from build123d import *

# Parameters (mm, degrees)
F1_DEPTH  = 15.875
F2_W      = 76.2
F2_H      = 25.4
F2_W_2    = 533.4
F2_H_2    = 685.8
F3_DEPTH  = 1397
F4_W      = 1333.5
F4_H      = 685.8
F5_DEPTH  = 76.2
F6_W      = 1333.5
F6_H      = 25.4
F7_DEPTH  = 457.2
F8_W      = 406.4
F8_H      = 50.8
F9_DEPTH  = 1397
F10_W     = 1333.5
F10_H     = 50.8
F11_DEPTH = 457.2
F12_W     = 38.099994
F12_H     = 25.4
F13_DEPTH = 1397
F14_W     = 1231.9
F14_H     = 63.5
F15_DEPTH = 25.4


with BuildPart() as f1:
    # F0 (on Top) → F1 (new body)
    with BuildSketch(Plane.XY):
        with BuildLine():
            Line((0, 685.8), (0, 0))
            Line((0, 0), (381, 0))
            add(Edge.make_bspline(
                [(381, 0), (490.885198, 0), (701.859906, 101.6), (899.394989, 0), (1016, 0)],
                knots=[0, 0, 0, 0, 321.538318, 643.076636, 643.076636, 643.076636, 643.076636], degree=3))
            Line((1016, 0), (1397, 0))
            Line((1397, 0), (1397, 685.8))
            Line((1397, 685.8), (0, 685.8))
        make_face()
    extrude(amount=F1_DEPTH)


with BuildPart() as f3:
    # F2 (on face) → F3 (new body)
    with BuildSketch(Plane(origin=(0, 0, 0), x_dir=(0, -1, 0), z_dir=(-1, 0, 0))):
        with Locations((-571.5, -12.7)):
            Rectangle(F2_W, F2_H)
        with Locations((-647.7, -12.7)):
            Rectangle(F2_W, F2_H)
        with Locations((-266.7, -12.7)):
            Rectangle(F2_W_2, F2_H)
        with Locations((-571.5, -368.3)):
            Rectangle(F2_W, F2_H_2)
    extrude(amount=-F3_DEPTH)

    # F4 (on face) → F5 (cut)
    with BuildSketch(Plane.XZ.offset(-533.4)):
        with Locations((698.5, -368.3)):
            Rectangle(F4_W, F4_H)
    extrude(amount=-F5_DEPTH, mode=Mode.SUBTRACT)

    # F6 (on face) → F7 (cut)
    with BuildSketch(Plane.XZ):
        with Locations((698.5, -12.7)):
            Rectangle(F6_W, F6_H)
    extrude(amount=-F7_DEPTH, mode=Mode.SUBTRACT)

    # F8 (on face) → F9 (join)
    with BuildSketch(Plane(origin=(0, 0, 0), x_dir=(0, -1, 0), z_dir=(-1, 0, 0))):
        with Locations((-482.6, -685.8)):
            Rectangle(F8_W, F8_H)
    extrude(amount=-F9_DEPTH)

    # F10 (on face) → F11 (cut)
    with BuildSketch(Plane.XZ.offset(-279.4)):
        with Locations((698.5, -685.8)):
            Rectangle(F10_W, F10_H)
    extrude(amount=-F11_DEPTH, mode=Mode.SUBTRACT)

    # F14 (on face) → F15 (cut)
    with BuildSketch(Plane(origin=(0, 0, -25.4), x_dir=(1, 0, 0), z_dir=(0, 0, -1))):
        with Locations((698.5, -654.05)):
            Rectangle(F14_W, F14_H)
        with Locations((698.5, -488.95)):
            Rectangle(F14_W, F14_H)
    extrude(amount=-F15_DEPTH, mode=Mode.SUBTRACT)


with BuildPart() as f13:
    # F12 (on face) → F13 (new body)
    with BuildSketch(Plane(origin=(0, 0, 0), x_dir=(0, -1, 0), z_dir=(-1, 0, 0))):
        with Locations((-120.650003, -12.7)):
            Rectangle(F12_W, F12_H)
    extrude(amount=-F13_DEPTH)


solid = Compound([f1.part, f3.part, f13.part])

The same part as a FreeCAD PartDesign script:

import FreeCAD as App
import Part
import Sketcher
Q = App.Units.Quantity

doc = App.newDocument("Part")
body = doc.addObject("PartDesign::Body", "Body")

# Sketch on XY plane
sketch1 = body.newObject("Sketcher::SketchObject", "Sketch")
sketch1.AttachmentSupport = (doc.getObject("XY_Plane"), [""])
sketch1.MapMode = "FlatFace"
sketch1.addGeometry(Part.LineSegment(App.Vector(0, 685.8, 0), App.Vector(0, 0, 0)), False)
sketch1.addGeometry(Part.LineSegment(App.Vector(0, 0, 0), App.Vector(381, 0, 0)), False)
sketch1.addGeometry(Part.BSplineCurve([App.Vector(381, 0, 0), App.Vector(490.885198, 0, 0), App.Vector(701.859906, 101.6, 0), App.Vector(899.394989, 0, 0), App.Vector(1016, 0, 0)], [4, 1, 4], [0, 321.538318, 643.076636], False, 3, [1, 1, 1, 1, 1], False), False)
sketch1.addGeometry(Part.LineSegment(App.Vector(1016, 0, 0), App.Vector(1397, 0, 0)), False)
sketch1.addGeometry(Part.LineSegment(App.Vector(1397, 0, 0), App.Vector(1397, 685.8, 0)), False)
sketch1.addGeometry(Part.LineSegment(App.Vector(1397, 685.8, 0), App.Vector(0, 685.8, 0)), False)
sketch1.addConstraint(Sketcher.Constraint("Block", 2))
sketch1.addConstraint(Sketcher.Constraint("Coincident", 0, 2, 1, 1))
sketch1.addConstraint(Sketcher.Constraint("Coincident", 1, 2, 2, 1))
sketch1.addConstraint(Sketcher.Constraint("Coincident", 2, 2, 3, 1))
sketch1.addConstraint(Sketcher.Constraint("Coincident", 3, 2, 4, 1))
sketch1.addConstraint(Sketcher.Constraint("Coincident", 4, 2, 5, 1))
sketch1.addConstraint(Sketcher.Constraint("Coincident", 5, 2, 0, 1))
sketch1.addConstraint(Sketcher.Constraint("Vertical", 0))
sketch1.addConstraint(Sketcher.Constraint("Horizontal", 1))
sketch1.addConstraint(Sketcher.Constraint("Horizontal", 3))
sketch1.addConstraint(Sketcher.Constraint("Vertical", 4))
sketch1.addConstraint(Sketcher.Constraint("Horizontal", 5))
sketch1.addConstraint(Sketcher.Constraint("PointOnObject", 5, 2, -2))
sketch1.addConstraint(Sketcher.Constraint("Equal", 1, 3))
sketch1.addConstraint(Sketcher.Constraint("DistanceY", 0, 2, 0, 1, Q("27 in")))
pad1 = body.newObject("PartDesign::Pad", "Pad")
pad1.Profile = sketch1
pad1.Length = Q("0.625 in")
body2 = doc.addObject("PartDesign::Body", "Body001")

# Sketch on YZ plane
sketch2 = body2.newObject("Sketcher::SketchObject", "Sketch001")
sketch2.AttachmentSupport = (doc.getObject("YZ_Plane001"), [""])
sketch2.MapMode = "FlatFace"
sketch2.addGeometry(Part.LineSegment(App.Vector(685.8, 0, 0), App.Vector(685.8, -25.4, 0)), False)
sketch2.addGeometry(Part.LineSegment(App.Vector(685.8, -25.4, 0), App.Vector(609.6, -25.4, 0)), False)
sketch2.addGeometry(Part.LineSegment(App.Vector(609.6, -25.4, 0), App.Vector(609.6, -711.2, 0)), False)
sketch2.addGeometry(Part.LineSegment(App.Vector(609.6, -711.2, 0), App.Vector(533.4, -711.2, 0)), False)
sketch2.addGeometry(Part.LineSegment(App.Vector(533.4, -711.2, 0), App.Vector(533.4, -25.4, 0)), False)
sketch2.addGeometry(Part.LineSegment(App.Vector(533.4, -25.4, 0), App.Vector(0, -25.4, 0)), False)
sketch2.addGeometry(Part.LineSegment(App.Vector(0, -25.4, 0), App.Vector(0, 0, 0)), False)
sketch2.addGeometry(Part.LineSegment(App.Vector(0, 0, 0), App.Vector(685.8, 0, 0)), False)
sketch2.addConstraint(Sketcher.Constraint("Coincident", 0, 2, 1, 1))
sketch2.addConstraint(Sketcher.Constraint("Coincident", 1, 2, 2, 1))
sketch2.addConstraint(Sketcher.Constraint("Coincident", 2, 2, 3, 1))
sketch2.addConstraint(Sketcher.Constraint("Coincident", 3, 2, 4, 1))
sketch2.addConstraint(Sketcher.Constraint("Coincident", 4, 2, 5, 1))
sketch2.addConstraint(Sketcher.Constraint("Coincident", 5, 2, 6, 1))
sketch2.addConstraint(Sketcher.Constraint("Coincident", 6, 2, 7, 1))
sketch2.addConstraint(Sketcher.Constraint("Coincident", 7, 2, 0, 1))
sketch2.addConstraint(Sketcher.Constraint("Vertical", 0))
sketch2.addConstraint(Sketcher.Constraint("Horizontal", 1))
sketch2.addConstraint(Sketcher.Constraint("Vertical", 2))
sketch2.addConstraint(Sketcher.Constraint("Horizontal", 3))
sketch2.addConstraint(Sketcher.Constraint("Vertical", 4))
sketch2.addConstraint(Sketcher.Constraint("Horizontal", 5))
sketch2.addConstraint(Sketcher.Constraint("Vertical", 6))
sketch2.addConstraint(Sketcher.Constraint("Horizontal", 7))
sketch2.addConstraint(Sketcher.Constraint("Coincident", 6, 2, -1, 1))
sketch2.addConstraint(Sketcher.Constraint("Horizontal", 1, 2, 4, 2))
sketch2.addConstraint(Sketcher.Constraint("Equal", 1, 3))
sketch2.addConstraint(Sketcher.Constraint("Equal", 7, 2))
sketch2.addConstraint(Sketcher.Constraint("DistanceX", 1, 2, 1, 1, Q("3 in")))
sketch2.addConstraint(Sketcher.Constraint("DistanceX", 5, 2, 5, 1, Q("21 in")))
sketch2.addConstraint(Sketcher.Constraint("DistanceY", 0, 2, 0, 1, Q("1 in")))
pad2 = body2.newObject("PartDesign::Pad", "Pad001")
pad2.Profile = sketch2
pad2.Length = Q("55 in")

# Sketch on XZ plane
sketch3 = body2.newObject("Sketcher::SketchObject", "Sketch002")
sketch3.AttachmentSupport = (doc.getObject("XZ_Plane001"), [""])
sketch3.MapMode = "FlatFace"
sketch3.AttachmentOffset = App.Placement(App.Vector(0, 0, -21 * 25.4), App.Rotation())
sketch3.addGeometry(Part.LineSegment(App.Vector(31.75, -25.4, 0), App.Vector(31.75, -711.2, 0)), False)
sketch3.addGeometry(Part.LineSegment(App.Vector(31.75, -711.2, 0), App.Vector(1365.25, -711.2, 0)), False)
sketch3.addGeometry(Part.LineSegment(App.Vector(1365.25, -711.2, 0), App.Vector(1365.25, -25.4, 0)), False)
sketch3.addGeometry(Part.LineSegment(App.Vector(1365.25, -25.4, 0), App.Vector(31.75, -25.4, 0)), False)
sketch3.addConstraint(Sketcher.Constraint("Coincident", 0, 2, 1, 1))
sketch3.addConstraint(Sketcher.Constraint("Coincident", 1, 2, 2, 1))
sketch3.addConstraint(Sketcher.Constraint("Coincident", 2, 2, 3, 1))
sketch3.addConstraint(Sketcher.Constraint("Coincident", 3, 2, 0, 1))
sketch3.addConstraint(Sketcher.Constraint("Vertical", 0))
sketch3.addConstraint(Sketcher.Constraint("Horizontal", 1))
sketch3.addConstraint(Sketcher.Constraint("Vertical", 2))
sketch3.addConstraint(Sketcher.Constraint("Horizontal", 3))
sketch3.addConstraint(Sketcher.Constraint("DistanceY", 0, 2, 0, 1, Q("27 in")))
sketch3.addConstraint(Sketcher.Constraint("DistanceX", 1, 1, 1, 2, Q("52.5 in")))
sketch3.addConstraint(Sketcher.Constraint("DistanceY", 0, 2, -1, 1, Q("28 in")))
sketch3.addConstraint(Sketcher.Constraint("DistanceX", -1, 1, 0, 2, Q("1.25 in")))
pocket1 = body2.newObject("PartDesign::Pocket", "Pocket")
pocket1.Profile = sketch3
pocket1.Length = Q("3 in")

# Sketch on XZ plane
sketch4 = body2.newObject("Sketcher::SketchObject", "Sketch003")
sketch4.AttachmentSupport = (doc.getObject("XZ_Plane001"), [""])
sketch4.MapMode = "FlatFace"
sketch4.addGeometry(Part.LineSegment(App.Vector(31.75, 0, 0), App.Vector(31.75, -25.4, 0)), False)
sketch4.addGeometry(Part.LineSegment(App.Vector(31.75, -25.4, 0), App.Vector(1365.25, -25.4, 0)), False)
sketch4.addGeometry(Part.LineSegment(App.Vector(1365.25, -25.4, 0), App.Vector(1365.25, 0, 0)), False)
sketch4.addGeometry(Part.LineSegment(App.Vector(1365.25, 0, 0), App.Vector(31.75, 0, 0)), False)
sketch4.addConstraint(Sketcher.Constraint("Coincident", 0, 2, 1, 1))
sketch4.addConstraint(Sketcher.Constraint("Coincident", 1, 2, 2, 1))
sketch4.addConstraint(Sketcher.Constraint("Coincident", 2, 2, 3, 1))
sketch4.addConstraint(Sketcher.Constraint("Coincident", 3, 2, 0, 1))
sketch4.addConstraint(Sketcher.Constraint("Vertical", 0))
sketch4.addConstraint(Sketcher.Constraint("Horizontal", 1))
sketch4.addConstraint(Sketcher.Constraint("Vertical", 2))
sketch4.addConstraint(Sketcher.Constraint("Horizontal", 3))
sketch4.addConstraint(Sketcher.Constraint("PointOnObject", 2, 2, -1))
sketch4.addConstraint(Sketcher.Constraint("DistanceY", 0, 2, 0, 1, Q("1 in")))
sketch4.addConstraint(Sketcher.Constraint("DistanceX", 1, 1, 1, 2, Q("52.5 in")))
sketch4.addConstraint(Sketcher.Constraint("DistanceX", -1, 1, 0, 2, Q("1.25 in")))
pocket2 = body2.newObject("PartDesign::Pocket", "Pocket001")
pocket2.Profile = sketch4
pocket2.Length = Q("18 in")

# Sketch on YZ plane
sketch5 = body2.newObject("Sketcher::SketchObject", "Sketch004")
sketch5.AttachmentSupport = (doc.getObject("YZ_Plane001"), [""])
sketch5.MapMode = "FlatFace"
sketch5.addGeometry(Part.LineSegment(App.Vector(685.8, -660.4, 0), App.Vector(685.8, -711.2, 0)), False)
sketch5.addGeometry(Part.LineSegment(App.Vector(685.8, -711.2, 0), App.Vector(279.4, -711.2, 0)), False)
sketch5.addGeometry(Part.LineSegment(App.Vector(279.4, -711.2, 0), App.Vector(279.4, -660.4, 0)), False)
sketch5.addGeometry(Part.LineSegment(App.Vector(279.4, -660.4, 0), App.Vector(685.8, -660.4, 0)), False)
sketch5.addConstraint(Sketcher.Constraint("Coincident", 0, 2, 1, 1))
sketch5.addConstraint(Sketcher.Constraint("Coincident", 1, 2, 2, 1))
sketch5.addConstraint(Sketcher.Constraint("Coincident", 2, 2, 3, 1))
sketch5.addConstraint(Sketcher.Constraint("Coincident", 3, 2, 0, 1))
sketch5.addConstraint(Sketcher.Constraint("Vertical", 0))
sketch5.addConstraint(Sketcher.Constraint("Horizontal", 1))
sketch5.addConstraint(Sketcher.Constraint("Vertical", 2))
sketch5.addConstraint(Sketcher.Constraint("Horizontal", 3))
sketch5.addConstraint(Sketcher.Constraint("DistanceX", 1, 2, 1, 1, Q("16 in")))
sketch5.addConstraint(Sketcher.Constraint("DistanceY", 0, 2, 0, 1, Q("2 in")))
sketch5.addConstraint(Sketcher.Constraint("DistanceX", -1, 1, 0, 2, Q("27 in")))
sketch5.addConstraint(Sketcher.Constraint("DistanceY", 0, 2, -1, 1, Q("28 in")))
pad3 = body2.newObject("PartDesign::Pad", "Pad002")
pad3.Profile = sketch5
pad3.Length = Q("55 in")

# Sketch on XZ plane
sketch6 = body2.newObject("Sketcher::SketchObject", "Sketch005")
sketch6.AttachmentSupport = (doc.getObject("XZ_Plane001"), [""])
sketch6.MapMode = "FlatFace"
sketch6.AttachmentOffset = App.Placement(App.Vector(0, 0, -11 * 25.4), App.Rotation())
sketch6.addGeometry(Part.LineSegment(App.Vector(31.75, -660.4, 0), App.Vector(31.75, -711.2, 0)), False)
sketch6.addGeometry(Part.LineSegment(App.Vector(31.75, -711.2, 0), App.Vector(1365.25, -711.2, 0)), False)
sketch6.addGeometry(Part.LineSegment(App.Vector(1365.25, -711.2, 0), App.Vector(1365.25, -660.4, 0)), False)
sketch6.addGeometry(Part.LineSegment(App.Vector(1365.25, -660.4, 0), App.Vector(31.75, -660.4, 0)), False)
sketch6.addConstraint(Sketcher.Constraint("Coincident", 0, 2, 1, 1))
sketch6.addConstraint(Sketcher.Constraint("Coincident", 1, 2, 2, 1))
sketch6.addConstraint(Sketcher.Constraint("Coincident", 2, 2, 3, 1))
sketch6.addConstraint(Sketcher.Constraint("Coincident", 3, 2, 0, 1))
sketch6.addConstraint(Sketcher.Constraint("Vertical", 0))
sketch6.addConstraint(Sketcher.Constraint("Horizontal", 1))
sketch6.addConstraint(Sketcher.Constraint("Vertical", 2))
sketch6.addConstraint(Sketcher.Constraint("Horizontal", 3))
sketch6.addConstraint(Sketcher.Constraint("DistanceY", 0, 2, 0, 1, Q("2 in")))
sketch6.addConstraint(Sketcher.Constraint("DistanceX", 1, 1, 1, 2, Q("52.5 in")))
sketch6.addConstraint(Sketcher.Constraint("DistanceY", 0, 2, -1, 1, Q("28 in")))
sketch6.addConstraint(Sketcher.Constraint("DistanceX", -1, 1, 0, 2, Q("1.25 in")))
pocket3 = body2.newObject("PartDesign::Pocket", "Pocket002")
pocket3.Profile = sketch6
pocket3.Length = Q("18 in")

# Sketch on XY plane
sketch7 = body2.newObject("Sketcher::SketchObject", "Sketch006")
sketch7.AttachmentSupport = (doc.getObject("XY_Plane001"), [""])
sketch7.MapMode = "FlatFace"
sketch7.AttachmentOffset = App.Placement(App.Vector(0, 0, -1 * 25.4), App.Rotation())
sketch7.addGeometry(Part.LineSegment(App.Vector(82.55, 622.3, 0), App.Vector(82.55, 685.8, 0)), False)
sketch7.addGeometry(Part.LineSegment(App.Vector(82.55, 685.8, 0), App.Vector(1314.45, 685.8, 0)), False)
sketch7.addGeometry(Part.LineSegment(App.Vector(1314.45, 685.8, 0), App.Vector(1314.45, 622.3, 0)), False)
sketch7.addGeometry(Part.LineSegment(App.Vector(1314.45, 622.3, 0), App.Vector(82.55, 622.3, 0)), False)
sketch7.addGeometry(Part.LineSegment(App.Vector(82.55, 457.2, 0), App.Vector(82.55, 520.7, 0)), False)
sketch7.addGeometry(Part.LineSegment(App.Vector(82.55, 520.7, 0), App.Vector(1314.45, 520.7, 0)), False)
sketch7.addGeometry(Part.LineSegment(App.Vector(1314.45, 520.7, 0), App.Vector(1314.45, 457.2, 0)), False)
sketch7.addGeometry(Part.LineSegment(App.Vector(1314.45, 457.2, 0), App.Vector(82.55, 457.2, 0)), False)
sketch7.addConstraint(Sketcher.Constraint("Coincident", 0, 2, 1, 1))
sketch7.addConstraint(Sketcher.Constraint("Coincident", 1, 2, 2, 1))
sketch7.addConstraint(Sketcher.Constraint("Coincident", 2, 2, 3, 1))
sketch7.addConstraint(Sketcher.Constraint("Coincident", 3, 2, 0, 1))
sketch7.addConstraint(Sketcher.Constraint("Coincident", 4, 2, 5, 1))
sketch7.addConstraint(Sketcher.Constraint("Coincident", 5, 2, 6, 1))
sketch7.addConstraint(Sketcher.Constraint("Coincident", 6, 2, 7, 1))
sketch7.addConstraint(Sketcher.Constraint("Coincident", 7, 2, 4, 1))
sketch7.addConstraint(Sketcher.Constraint("Vertical", 0))
sketch7.addConstraint(Sketcher.Constraint("Horizontal", 1))
sketch7.addConstraint(Sketcher.Constraint("Vertical", 2))
sketch7.addConstraint(Sketcher.Constraint("Horizontal", 3))
sketch7.addConstraint(Sketcher.Constraint("Vertical", 4))
sketch7.addConstraint(Sketcher.Constraint("Horizontal", 5))
sketch7.addConstraint(Sketcher.Constraint("Vertical", 6))
sketch7.addConstraint(Sketcher.Constraint("Horizontal", 7))
sketch7.addConstraint(Sketcher.Constraint("Vertical", 3, 2, 4, 2))
sketch7.addConstraint(Sketcher.Constraint("Vertical", 2, 2, 5, 2))
sketch7.addConstraint(Sketcher.Constraint("Equal", 2, 4))
sketch7.addConstraint(Sketcher.Constraint("DistanceX", 1, 1, 1, 2, Q("48.5 in")))
sketch7.addConstraint(Sketcher.Constraint("DistanceY", 0, 1, 0, 2, Q("2.5 in")))
sketch7.addConstraint(Sketcher.Constraint("DistanceY", -1, 1, 0, 2, Q("27 in")))
sketch7.addConstraint(Sketcher.Constraint("DistanceY", -1, 1, 6, 2, Q("18 in")))
sketch7.addConstraint(Sketcher.Constraint("DistanceX", -1, 1, 0, 2, Q("3.25 in")))
pocket4 = body2.newObject("PartDesign::Pocket", "Pocket003")
pocket4.Profile = sketch7
pocket4.Length = Q("1 in")
pocket4.Reversed = True
body3 = doc.addObject("PartDesign::Body", "Body002")

# Sketch on YZ plane
sketch8 = body3.newObject("Sketcher::SketchObject", "Sketch007")
sketch8.AttachmentSupport = (doc.getObject("YZ_Plane002"), [""])
sketch8.MapMode = "FlatFace"
sketch8.addGeometry(Part.LineSegment(App.Vector(139.7, 0, 0), App.Vector(139.7, -25.4, 0)), False)
sketch8.addGeometry(Part.LineSegment(App.Vector(139.7, -25.4, 0), App.Vector(101.600006, -25.4, 0)), False)
sketch8.addGeometry(Part.LineSegment(App.Vector(101.600006, -25.4, 0), App.Vector(101.600006, 0, 0)), False)
sketch8.addGeometry(Part.LineSegment(App.Vector(101.600006, 0, 0), App.Vector(139.7, 0, 0)), False)
sketch8.addConstraint(Sketcher.Constraint("Coincident", 0, 2, 1, 1))
sketch8.addConstraint(Sketcher.Constraint("Coincident", 1, 2, 2, 1))
sketch8.addConstraint(Sketcher.Constraint("Coincident", 2, 2, 3, 1))
sketch8.addConstraint(Sketcher.Constraint("Coincident", 3, 2, 0, 1))
sketch8.addConstraint(Sketcher.Constraint("Vertical", 0))
sketch8.addConstraint(Sketcher.Constraint("Horizontal", 1))
sketch8.addConstraint(Sketcher.Constraint("Vertical", 2))
sketch8.addConstraint(Sketcher.Constraint("Horizontal", 3))
sketch8.addConstraint(Sketcher.Constraint("PointOnObject", 2, 2, -1))
sketch8.addConstraint(Sketcher.Constraint("DistanceY", 0, 2, 0, 1, Q("1 in")))
sketch8.addConstraint(Sketcher.Constraint("DistanceX", -1, 1, 0, 2, Q("5.5 in")))
sketch8.addConstraint(Sketcher.Constraint("DistanceX", 1, 2, 1, 1, 38.099994))
pad4 = body3.newObject("PartDesign::Pad", "Pad003")
pad4.Profile = sketch8
pad4.Length = Q("55 in")

doc.recompute()
